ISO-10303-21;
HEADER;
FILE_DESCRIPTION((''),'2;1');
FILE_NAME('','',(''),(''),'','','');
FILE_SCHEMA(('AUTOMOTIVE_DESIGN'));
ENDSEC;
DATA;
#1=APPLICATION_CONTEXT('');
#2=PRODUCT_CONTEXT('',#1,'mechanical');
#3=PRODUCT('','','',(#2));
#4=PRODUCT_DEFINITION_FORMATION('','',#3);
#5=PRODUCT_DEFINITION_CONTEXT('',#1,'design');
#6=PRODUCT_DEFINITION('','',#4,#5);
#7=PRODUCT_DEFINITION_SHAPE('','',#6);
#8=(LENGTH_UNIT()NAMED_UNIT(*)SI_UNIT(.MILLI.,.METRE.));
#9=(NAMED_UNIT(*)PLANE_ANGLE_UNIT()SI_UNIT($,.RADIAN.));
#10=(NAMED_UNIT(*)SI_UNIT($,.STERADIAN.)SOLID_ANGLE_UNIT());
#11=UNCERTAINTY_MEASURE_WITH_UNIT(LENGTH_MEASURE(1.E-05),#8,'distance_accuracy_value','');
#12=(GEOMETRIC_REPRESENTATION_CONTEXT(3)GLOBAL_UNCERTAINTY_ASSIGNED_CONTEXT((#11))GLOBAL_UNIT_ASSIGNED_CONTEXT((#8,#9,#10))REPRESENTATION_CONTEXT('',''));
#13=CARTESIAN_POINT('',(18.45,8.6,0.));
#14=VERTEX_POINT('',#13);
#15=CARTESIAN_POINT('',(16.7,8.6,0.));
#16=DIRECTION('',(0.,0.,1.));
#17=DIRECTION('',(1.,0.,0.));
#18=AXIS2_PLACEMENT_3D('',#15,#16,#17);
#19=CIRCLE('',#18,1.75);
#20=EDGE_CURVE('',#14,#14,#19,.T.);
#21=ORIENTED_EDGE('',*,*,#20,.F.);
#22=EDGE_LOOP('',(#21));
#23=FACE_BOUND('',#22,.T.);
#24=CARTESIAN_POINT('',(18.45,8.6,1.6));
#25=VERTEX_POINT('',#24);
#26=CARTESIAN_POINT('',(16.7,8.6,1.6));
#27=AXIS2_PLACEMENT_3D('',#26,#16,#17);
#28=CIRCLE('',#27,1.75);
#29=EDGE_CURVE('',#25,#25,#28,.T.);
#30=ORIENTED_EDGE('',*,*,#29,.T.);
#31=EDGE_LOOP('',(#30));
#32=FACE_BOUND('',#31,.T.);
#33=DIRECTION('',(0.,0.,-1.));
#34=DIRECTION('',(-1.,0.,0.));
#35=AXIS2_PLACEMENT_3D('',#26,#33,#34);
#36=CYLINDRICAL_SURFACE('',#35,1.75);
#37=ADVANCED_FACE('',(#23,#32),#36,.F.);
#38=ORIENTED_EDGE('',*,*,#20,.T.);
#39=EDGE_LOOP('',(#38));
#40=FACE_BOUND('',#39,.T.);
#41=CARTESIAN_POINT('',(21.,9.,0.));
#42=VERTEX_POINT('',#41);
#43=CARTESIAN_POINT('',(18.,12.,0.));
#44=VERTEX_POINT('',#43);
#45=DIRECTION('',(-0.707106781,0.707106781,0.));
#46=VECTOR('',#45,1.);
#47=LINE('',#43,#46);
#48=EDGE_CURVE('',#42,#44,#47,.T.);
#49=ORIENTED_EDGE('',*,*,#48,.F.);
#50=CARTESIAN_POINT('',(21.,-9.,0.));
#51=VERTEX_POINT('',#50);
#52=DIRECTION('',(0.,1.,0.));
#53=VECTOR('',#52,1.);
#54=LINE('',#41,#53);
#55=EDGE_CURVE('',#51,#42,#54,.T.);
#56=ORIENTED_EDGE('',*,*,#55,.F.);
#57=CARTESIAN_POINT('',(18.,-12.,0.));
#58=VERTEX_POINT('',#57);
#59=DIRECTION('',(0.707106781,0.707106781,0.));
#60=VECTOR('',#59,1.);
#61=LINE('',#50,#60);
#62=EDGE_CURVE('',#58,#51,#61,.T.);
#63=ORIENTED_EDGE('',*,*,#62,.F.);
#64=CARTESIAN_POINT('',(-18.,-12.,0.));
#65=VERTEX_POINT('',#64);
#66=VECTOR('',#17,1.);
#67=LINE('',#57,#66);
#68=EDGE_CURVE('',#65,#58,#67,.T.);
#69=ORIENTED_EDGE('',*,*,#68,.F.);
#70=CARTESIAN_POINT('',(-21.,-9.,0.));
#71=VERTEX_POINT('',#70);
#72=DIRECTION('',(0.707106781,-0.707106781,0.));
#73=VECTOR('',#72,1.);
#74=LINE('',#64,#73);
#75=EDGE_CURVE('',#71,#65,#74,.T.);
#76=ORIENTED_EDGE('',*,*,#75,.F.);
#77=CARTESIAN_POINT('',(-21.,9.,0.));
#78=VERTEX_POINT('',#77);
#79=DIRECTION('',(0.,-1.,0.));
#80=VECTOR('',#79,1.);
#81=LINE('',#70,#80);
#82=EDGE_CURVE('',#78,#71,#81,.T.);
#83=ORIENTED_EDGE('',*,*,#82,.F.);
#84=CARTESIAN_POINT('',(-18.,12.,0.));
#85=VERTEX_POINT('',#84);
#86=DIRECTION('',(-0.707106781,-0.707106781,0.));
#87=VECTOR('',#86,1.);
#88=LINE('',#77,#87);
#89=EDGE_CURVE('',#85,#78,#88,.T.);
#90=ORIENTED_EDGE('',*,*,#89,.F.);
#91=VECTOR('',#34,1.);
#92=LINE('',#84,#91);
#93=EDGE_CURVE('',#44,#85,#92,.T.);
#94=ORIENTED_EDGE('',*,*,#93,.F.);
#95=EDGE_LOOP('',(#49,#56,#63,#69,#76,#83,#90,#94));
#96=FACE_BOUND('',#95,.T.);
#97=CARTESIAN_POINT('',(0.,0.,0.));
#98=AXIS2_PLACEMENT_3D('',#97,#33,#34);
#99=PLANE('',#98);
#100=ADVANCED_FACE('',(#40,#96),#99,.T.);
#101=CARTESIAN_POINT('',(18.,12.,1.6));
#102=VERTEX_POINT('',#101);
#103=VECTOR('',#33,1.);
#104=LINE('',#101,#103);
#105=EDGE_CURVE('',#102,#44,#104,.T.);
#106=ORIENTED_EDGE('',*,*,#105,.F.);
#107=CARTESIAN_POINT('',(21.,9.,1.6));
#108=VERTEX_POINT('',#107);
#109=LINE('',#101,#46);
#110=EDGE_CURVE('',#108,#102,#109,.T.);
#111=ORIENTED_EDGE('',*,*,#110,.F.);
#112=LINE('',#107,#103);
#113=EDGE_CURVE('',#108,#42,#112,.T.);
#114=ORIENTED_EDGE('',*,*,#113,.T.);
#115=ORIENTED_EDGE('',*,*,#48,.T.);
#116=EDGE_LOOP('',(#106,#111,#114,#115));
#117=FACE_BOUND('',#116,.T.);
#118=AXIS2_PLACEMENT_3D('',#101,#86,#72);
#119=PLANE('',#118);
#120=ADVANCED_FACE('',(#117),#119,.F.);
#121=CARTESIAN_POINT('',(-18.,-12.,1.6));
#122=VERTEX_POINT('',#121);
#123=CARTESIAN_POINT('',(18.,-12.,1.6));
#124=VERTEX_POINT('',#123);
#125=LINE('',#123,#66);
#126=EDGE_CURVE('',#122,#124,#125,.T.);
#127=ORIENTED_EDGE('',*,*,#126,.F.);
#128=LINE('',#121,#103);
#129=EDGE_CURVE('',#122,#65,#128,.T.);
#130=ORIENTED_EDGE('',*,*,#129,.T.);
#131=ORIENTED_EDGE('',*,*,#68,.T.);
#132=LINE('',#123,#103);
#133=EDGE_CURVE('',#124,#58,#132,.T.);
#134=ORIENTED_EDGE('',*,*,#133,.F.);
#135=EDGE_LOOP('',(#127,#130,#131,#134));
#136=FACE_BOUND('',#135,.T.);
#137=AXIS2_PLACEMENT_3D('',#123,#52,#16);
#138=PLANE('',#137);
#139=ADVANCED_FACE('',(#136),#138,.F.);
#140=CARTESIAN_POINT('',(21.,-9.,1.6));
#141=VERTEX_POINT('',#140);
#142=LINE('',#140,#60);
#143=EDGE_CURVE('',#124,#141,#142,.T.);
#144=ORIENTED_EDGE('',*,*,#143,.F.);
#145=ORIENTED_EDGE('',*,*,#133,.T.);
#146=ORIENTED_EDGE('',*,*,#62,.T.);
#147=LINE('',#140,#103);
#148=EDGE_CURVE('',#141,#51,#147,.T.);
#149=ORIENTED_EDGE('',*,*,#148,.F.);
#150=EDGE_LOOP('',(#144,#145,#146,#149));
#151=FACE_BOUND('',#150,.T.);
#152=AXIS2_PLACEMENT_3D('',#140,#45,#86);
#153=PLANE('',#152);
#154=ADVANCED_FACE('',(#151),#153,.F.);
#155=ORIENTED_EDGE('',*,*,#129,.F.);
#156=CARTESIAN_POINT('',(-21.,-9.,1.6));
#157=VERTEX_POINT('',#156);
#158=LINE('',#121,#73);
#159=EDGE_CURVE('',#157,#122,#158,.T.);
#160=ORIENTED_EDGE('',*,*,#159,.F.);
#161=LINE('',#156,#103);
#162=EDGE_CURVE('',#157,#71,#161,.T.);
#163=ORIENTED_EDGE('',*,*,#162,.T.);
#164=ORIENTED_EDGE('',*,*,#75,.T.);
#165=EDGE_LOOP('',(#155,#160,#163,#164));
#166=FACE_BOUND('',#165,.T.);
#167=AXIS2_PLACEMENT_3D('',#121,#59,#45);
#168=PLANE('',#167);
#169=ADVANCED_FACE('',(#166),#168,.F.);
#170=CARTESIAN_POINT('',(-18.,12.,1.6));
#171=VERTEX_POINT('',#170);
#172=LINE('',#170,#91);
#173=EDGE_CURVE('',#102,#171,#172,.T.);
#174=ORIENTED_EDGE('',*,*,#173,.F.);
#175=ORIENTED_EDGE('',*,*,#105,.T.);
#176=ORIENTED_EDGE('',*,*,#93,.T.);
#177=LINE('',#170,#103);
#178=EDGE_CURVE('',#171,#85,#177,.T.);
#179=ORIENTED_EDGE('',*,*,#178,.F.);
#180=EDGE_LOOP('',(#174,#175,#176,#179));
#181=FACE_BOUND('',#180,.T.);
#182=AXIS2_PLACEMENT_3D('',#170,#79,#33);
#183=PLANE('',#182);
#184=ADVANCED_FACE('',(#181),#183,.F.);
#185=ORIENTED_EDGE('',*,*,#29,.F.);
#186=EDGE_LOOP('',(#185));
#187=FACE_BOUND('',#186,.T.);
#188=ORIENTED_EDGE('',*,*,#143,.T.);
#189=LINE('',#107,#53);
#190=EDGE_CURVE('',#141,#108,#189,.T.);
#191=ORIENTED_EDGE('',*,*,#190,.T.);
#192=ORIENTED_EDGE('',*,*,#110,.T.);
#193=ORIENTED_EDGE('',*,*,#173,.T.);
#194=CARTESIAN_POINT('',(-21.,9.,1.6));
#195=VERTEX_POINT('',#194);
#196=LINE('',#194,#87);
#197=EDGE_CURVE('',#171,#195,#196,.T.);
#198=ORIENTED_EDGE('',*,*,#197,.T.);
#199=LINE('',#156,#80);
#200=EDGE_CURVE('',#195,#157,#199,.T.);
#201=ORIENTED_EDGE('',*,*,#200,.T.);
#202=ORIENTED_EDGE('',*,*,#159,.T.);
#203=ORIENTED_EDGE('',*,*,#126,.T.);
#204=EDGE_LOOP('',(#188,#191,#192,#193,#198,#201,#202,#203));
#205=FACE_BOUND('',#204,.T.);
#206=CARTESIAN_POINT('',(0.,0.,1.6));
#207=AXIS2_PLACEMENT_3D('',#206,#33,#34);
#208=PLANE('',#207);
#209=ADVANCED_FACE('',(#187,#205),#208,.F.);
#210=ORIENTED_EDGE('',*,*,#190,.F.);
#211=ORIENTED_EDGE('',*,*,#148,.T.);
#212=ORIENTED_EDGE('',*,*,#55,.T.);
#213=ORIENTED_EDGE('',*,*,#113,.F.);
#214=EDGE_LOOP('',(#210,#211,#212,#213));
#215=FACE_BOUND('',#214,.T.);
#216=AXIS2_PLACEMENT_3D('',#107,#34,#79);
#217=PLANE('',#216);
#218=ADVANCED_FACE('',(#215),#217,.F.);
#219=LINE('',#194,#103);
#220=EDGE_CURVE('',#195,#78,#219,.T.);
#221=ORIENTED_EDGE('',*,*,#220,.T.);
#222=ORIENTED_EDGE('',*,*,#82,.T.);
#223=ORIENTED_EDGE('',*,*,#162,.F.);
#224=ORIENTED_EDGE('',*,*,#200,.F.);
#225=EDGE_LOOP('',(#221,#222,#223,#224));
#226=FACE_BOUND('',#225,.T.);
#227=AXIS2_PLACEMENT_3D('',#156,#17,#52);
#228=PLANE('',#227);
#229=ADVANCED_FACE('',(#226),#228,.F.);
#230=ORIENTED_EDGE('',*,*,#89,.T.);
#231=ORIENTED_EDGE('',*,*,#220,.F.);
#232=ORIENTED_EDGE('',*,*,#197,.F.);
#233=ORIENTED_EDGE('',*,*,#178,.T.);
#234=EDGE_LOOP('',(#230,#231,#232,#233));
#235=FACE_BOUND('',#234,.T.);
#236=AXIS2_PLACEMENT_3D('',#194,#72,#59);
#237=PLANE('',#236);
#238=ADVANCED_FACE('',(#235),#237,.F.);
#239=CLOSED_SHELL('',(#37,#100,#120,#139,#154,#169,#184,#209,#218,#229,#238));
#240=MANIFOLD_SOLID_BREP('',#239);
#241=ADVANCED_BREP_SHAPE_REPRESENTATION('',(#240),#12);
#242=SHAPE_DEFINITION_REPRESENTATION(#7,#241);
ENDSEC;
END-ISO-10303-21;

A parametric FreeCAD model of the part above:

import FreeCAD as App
import Part
import Sketcher


def add_polygon(sketch, points):
    """Adds a closed chain of lines whose ends are joined by coincident constraints."""
    first, n = sketch.GeometryCount, len(points)
    for a, b in zip(points, points[1:] + points[:1]):
        sketch.addGeometry(Part.LineSegment(App.Vector(*a, 0), App.Vector(*b, 0)), False)
    for i in range(n):
        sketch.addConstraint(Sketcher.Constraint("Coincident", first + i, 2, first + (i + 1) % n, 1))

doc = App.newDocument("Part")
body = doc.addObject("PartDesign::Body", "Body")

# Sketch on XY plane
sketch1 = body.newObject("Sketcher::SketchObject", "Sketch")
sketch1.AttachmentSupport = (doc.getObject("XY_Plane"), [""])
sketch1.MapMode = "FlatFace"
add_polygon(sketch1, [(-18, 12), (-21, 9), (-21, -9), (-18, -12), (18, -12), (21, -9), (21, 9), (18, 12)])  # lines 0-7
sketch1.addGeometry(Part.Circle(App.Vector(16.7, 8.6, 0), App.Vector(0, 0, 1), 1.8), False)  # 8
sketch1.addConstraint([
    Sketcher.Constraint("Vertical", 1),
    Sketcher.Constraint("Horizontal", 3),
    Sketcher.Constraint("Vertical", 5),
    Sketcher.Constraint("Horizontal", 7),
    Sketcher.Constraint("Symmetric", 0, 2, 4, 2, -1, 1),
    Sketcher.Constraint("Symmetric", 2, 2, 6, 2, -1, 1),
    Sketcher.Constraint("Perpendicular", 0, 2),
    Sketcher.Constraint("Perpendicular", 2, 4),
    Sketcher.Constraint("Perpendicular", 4, 6),
    Sketcher.Constraint("Horizontal", 1, 2, 4, 2),
    Sketcher.Constraint("Vertical", 3, 2, 6, 2),
    Sketcher.Constraint("Diameter", 8, 3.5),
    Sketcher.Constraint("DistanceX", 3, 1, 3, 2, 36.0),
    Sketcher.Constraint("DistanceY", 1, 2, 1, 1, 18.0),
    Sketcher.Constraint("DistanceX", 0, 2, -1, 1, 21.0),
    Sketcher.Constraint("DistanceX", -1, 1, 8, 3, 16.7),
    Sketcher.Constraint("DistanceY", -1, 1, 8, 3, 8.6),
])
pad1 = body.newObject("PartDesign::Pad", "Pad")
pad1.Profile = sketch1
pad1.Length = 1.6

doc.recompute()
